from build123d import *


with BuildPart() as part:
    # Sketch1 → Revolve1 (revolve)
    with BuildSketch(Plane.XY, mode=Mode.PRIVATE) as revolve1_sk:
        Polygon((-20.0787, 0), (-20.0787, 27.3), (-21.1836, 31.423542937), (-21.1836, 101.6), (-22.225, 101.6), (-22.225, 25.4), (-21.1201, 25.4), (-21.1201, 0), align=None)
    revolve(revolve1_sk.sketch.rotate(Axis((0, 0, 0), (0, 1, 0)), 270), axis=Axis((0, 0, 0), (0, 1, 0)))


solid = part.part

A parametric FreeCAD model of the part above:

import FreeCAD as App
import Part
import Sketcher

V = App.Vector
Q = App.Units.Quantity

doc = App.newDocument("Part")
body = doc.addObject("PartDesign::Body", "Body")

# Sketch on XY plane
sketch1 = body.newObject("Sketcher::SketchObject", "Sketch")
sketch1.AttachmentSupport = (doc.getObject("XY_Plane"), [""])
sketch1.MapMode = "FlatFace"
sketch1.addGeometry([
    Part.LineSegment(V(-20.1, 0, 0), V(-20.1, 27.3, 0)),  # 0
    Part.LineSegment(V(-20.1, 27.3, 0), V(-21.2, 31.4, 0)),  # 1
    Part.LineSegment(V(-21.2, 31.4, 0), V(-21.2, 101.6, 0)),  # 2
    Part.LineSegment(V(-21.2, 101.6, 0), V(-22.2, 101.6, 0)),  # 3
    Part.LineSegment(V(-22.2, 101.6, 0), V(-22.2, 25.4, 0)),  # 4
    Part.LineSegment(V(-22.2, 25.4, 0), V(-21.1, 25.4, 0)),  # 5
    Part.LineSegment(V(-21.1, 25.4, 0), V(-21.1, 0, 0)),  # 6
    Part.LineSegment(V(-21.1, 0, 0), V(-20.1, 0, 0)),  # 7
], False)
sketch1.addConstraint([
    Sketcher.Constraint("Coincident", 0, 2, 1, 1),
    Sketcher.Constraint("Coincident", 1, 2, 2, 1),
    Sketcher.Constraint("Coincident", 2, 2, 3, 1),
    Sketcher.Constraint("Coincident", 3, 2, 4, 1),
    Sketcher.Constraint("Coincident", 4, 2, 5, 1),
    Sketcher.Constraint("Coincident", 5, 2, 6, 1),
    Sketcher.Constraint("Coincident", 6, 2, 7, 1),
    Sketcher.Constraint("Coincident", 7, 2, 0, 1),
    Sketcher.Constraint("Vertical", 0),
    Sketcher.Constraint("Vertical", 2),
    Sketcher.Constraint("Horizontal", 3),
    Sketcher.Constraint("Vertical", 4),
    Sketcher.Constraint("Horizontal", 5),
    Sketcher.Constraint("Vertical", 6),
    Sketcher.Constraint("Horizontal", 7),
    Sketcher.Constraint("PointOnObject", 6, 2, -1),
    Sketcher.Constraint("Equal", 3, 7),
    Sketcher.Constraint("DistanceY", 4, 2, 4, 1, Q("3 in")),
    Sketcher.Constraint("DistanceY", 6, 2, 6, 1, Q("1 in")),
    Sketcher.Constraint("Angle", 1, Q("105 deg")),
    Sketcher.Constraint("DistanceX", 3, 2, 3, 1, Q("0.041 in")),
    Sketcher.Constraint("DistanceX", 5, 1, 5, 2, Q("0.0435 in")),
    Sketcher.Constraint("DistanceX", 1, 2, -1, 1, Q("0.834 in")),
    Sketcher.Constraint("DistanceY", 0, 1, 0, 2, Q("27.3 mm")),
])
revolution = body.newObject("PartDesign::Revolution", "Revolution")
revolution.Profile = sketch1
revolution.ReferenceAxis = (sketch1, ["V_Axis"])
revolution.Angle = 360

doc.recompute()
